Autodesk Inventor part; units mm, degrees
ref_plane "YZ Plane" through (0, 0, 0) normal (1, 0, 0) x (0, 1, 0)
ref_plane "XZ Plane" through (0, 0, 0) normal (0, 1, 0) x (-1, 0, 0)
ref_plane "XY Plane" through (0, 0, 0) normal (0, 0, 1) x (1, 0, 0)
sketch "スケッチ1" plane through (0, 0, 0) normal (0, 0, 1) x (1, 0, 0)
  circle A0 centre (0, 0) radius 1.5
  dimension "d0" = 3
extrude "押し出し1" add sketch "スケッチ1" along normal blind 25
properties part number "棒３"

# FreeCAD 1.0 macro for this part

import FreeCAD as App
import Part
import Sketcher
from FreeCAD import Vector

doc = App.newDocument("Part")
body = doc.addObject("PartDesign::Body", "Body")

# Sketch on XY plane
sketch1 = body.newObject("Sketcher::SketchObject", "Sketch")
sketch1.AttachmentSupport = (doc.getObject("XY_Plane"), [""])
sketch1.MapMode = "FlatFace"
sketch1.addGeometry(Part.Circle(Vector(0, 0, 0), Vector(0, 0, 1), 1.5), False)
sketch1.addConstraint([
    Sketcher.Constraint("Coincident", 0, 3, -1, 1),
    Sketcher.Constraint("Diameter", 0, 3.0),
])
pad1 = body.newObject("PartDesign::Pad", "Pad")
pad1.Profile = sketch1
pad1.Length = 25

doc.recompute()
